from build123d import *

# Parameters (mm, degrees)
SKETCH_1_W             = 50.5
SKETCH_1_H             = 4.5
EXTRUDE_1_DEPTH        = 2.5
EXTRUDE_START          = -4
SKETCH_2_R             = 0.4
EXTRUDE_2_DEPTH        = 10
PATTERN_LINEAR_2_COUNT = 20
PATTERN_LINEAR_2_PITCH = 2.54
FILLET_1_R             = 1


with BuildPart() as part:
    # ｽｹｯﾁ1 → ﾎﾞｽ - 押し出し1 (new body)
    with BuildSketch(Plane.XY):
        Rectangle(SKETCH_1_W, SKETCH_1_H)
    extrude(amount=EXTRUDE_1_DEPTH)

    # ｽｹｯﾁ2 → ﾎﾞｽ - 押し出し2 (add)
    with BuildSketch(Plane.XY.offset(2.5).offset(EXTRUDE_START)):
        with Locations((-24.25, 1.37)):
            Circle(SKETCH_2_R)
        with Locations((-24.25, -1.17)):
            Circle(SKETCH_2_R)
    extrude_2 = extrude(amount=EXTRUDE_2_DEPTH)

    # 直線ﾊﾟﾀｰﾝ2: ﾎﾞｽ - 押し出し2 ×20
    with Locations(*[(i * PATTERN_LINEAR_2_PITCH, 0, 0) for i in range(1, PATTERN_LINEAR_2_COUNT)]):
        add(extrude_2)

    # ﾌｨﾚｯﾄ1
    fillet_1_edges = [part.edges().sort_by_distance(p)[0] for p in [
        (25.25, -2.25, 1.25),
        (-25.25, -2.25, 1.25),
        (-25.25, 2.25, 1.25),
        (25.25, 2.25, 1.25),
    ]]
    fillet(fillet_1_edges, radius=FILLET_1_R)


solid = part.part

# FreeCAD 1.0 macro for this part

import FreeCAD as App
import Part
import Sketcher
from FreeCAD import Vector
Q = App.Units.Quantity


def edges_at(feature, points):
    """Names of the edges that pass closest to the given points."""
    edges = feature.Shape.Edges
    near = lambda p: min(range(len(edges)), key=lambda i: edges[i].distToShape(Part.Vertex(*p))[0])
    return sorted({f"Edge{near(p) + 1}" for p in points})


def add_polygon(sketch, points):
    """Adds a closed chain of lines whose ends are joined by coincident constraints."""
    first, n = sketch.GeometryCount, len(points)
    for a, b in zip(points, points[1:] + points[:1]):
        sketch.addGeometry(Part.LineSegment(App.Vector(*a, 0), App.Vector(*b, 0)), False)
    for i in range(n):
        sketch.addConstraint(Sketcher.Constraint("Coincident", first + i, 2, first + (i + 1) % n, 1))

doc = App.newDocument("Part")
params = doc.addObject("Spreadsheet::Sheet", "Params")
for row, (alias, value) in enumerate([
    ("sketch1_width", "50.5 mm"),
    ("sketch1_height", "4.5 mm"),
    ("pad1_length", "2.5 mm"),
    ("sketch2_diameter", "0.8 mm"),
    ("pad2_length", "10 mm"),
    ("linearpattern_pitch", "2.54 mm"),
    ("fillet_radius", "1 mm"),
], start=1):
    params.set(f"A{row}", alias)
    params.set(f"B{row}", "=" + value)
    params.setAlias(f"B{row}", alias)

body = doc.addObject("PartDesign::Body", "Body")

sketch1 = doc.addObject("Sketcher::SketchObject", "Sketch")
body.addObject(sketch1)
sketch1.AttachmentSupport = (doc.XY_Plane, [""])
sketch1.MapMode = "FlatFace"
add_polygon(sketch1, [(-25.25, 2.25), (-25.25, -2.25), (25.25, -2.25), (25.25, 2.25)])
sketch1.addConstraint(Sketcher.Constraint("Vertical", 0))
sketch1.addConstraint(Sketcher.Constraint("Horizontal", 1))
sketch1.addConstraint(Sketcher.Constraint("Vertical", 2))
sketch1.addConstraint(Sketcher.Constraint("Horizontal", 3))
sketch1.addConstraint(Sketcher.Constraint("Symmetric", 0, 2, 2, 2, -1, 1))
sketch1.addConstraint(Sketcher.Constraint("DistanceX", 1, 1, 1, 2, Q("50.5 mm")))
sketch1.addConstraint(Sketcher.Constraint("DistanceY", 0, 2, 0, 1, Q("4.5 mm")))
sketch1.setExpression("Constraints[9]", "Params.sketch1_width")
sketch1.setExpression("Constraints[10]", "Params.sketch1_height")
pad1 = doc.addObject("PartDesign::Pad", "Pad")
body.addObject(pad1)
pad1.Profile = sketch1
pad1.setExpression("Length", "Params.pad1_length")

sketch2 = doc.addObject("Sketcher::SketchObject", "Sketch001")
body.addObject(sketch2)
sketch2.AttachmentSupport = (doc.XY_Plane, [""])
sketch2.MapMode = "FlatFace"
sketch2.AttachmentOffset = App.Placement(Vector(0, 0, -1.5), App.Rotation())
sketch2.addGeometry(Part.Circle(Vector(-24.25, 1.37, 0), Vector(0, 0, 1), 0.4), False)
sketch2.addGeometry(Part.Circle(Vector(-24.25, -1.17, 0), Vector(0, 0, 1), 0.4), False)
sketch2.addConstraint(Sketcher.Constraint("Equal", 0, 1))
sketch2.addConstraint(Sketcher.Constraint("Vertical", 0, 3, 1, 3))
sketch2.addConstraint(Sketcher.Constraint("Diameter", 0, Q("0.8 mm")))
sketch2.addConstraint(Sketcher.Constraint("DistanceX", 0, 3, -1, 1, Q("24.25 mm")))
sketch2.addConstraint(Sketcher.Constraint("DistanceY", -1, 1, 0, 3, Q("1.37 mm")))
sketch2.addConstraint(Sketcher.Constraint("DistanceY", 1, 3, -1, 1, Q("1.17 mm")))
sketch2.setExpression("Constraints[2]", "Params.sketch2_diameter")
pad2 = doc.addObject("PartDesign::Pad", "Pad001")
body.addObject(pad2)
pad2.Profile = sketch2
pad2.setExpression("Length", "Params.pad2_length")
doc.recompute()

linearpattern = doc.addObject("PartDesign::LinearPattern", "LinearPattern")
body.addObject(linearpattern)
linearpattern.Originals = [pad2]
linearpattern.Direction = (doc.X_Axis, [""])
linearpattern.Mode = "offset"
linearpattern.setExpression("Offset", "Params.linearpattern_pitch")
linearpattern.Occurrences = 20
body.Tip = linearpattern
doc.recompute()

fillet = doc.addObject("PartDesign::Fillet", "Fillet")
body.addObject(fillet)
fillet.Base = (linearpattern, edges_at(linearpattern, [
    (25.25, -2.25, 1.25),
    (-25.25, -2.25, 1.25),
    (-25.25, 2.25, 1.25),
    (25.25, 2.25, 1.25),
]))
fillet.setExpression("Radius", "Params.fillet_radius")

doc.recompute()
